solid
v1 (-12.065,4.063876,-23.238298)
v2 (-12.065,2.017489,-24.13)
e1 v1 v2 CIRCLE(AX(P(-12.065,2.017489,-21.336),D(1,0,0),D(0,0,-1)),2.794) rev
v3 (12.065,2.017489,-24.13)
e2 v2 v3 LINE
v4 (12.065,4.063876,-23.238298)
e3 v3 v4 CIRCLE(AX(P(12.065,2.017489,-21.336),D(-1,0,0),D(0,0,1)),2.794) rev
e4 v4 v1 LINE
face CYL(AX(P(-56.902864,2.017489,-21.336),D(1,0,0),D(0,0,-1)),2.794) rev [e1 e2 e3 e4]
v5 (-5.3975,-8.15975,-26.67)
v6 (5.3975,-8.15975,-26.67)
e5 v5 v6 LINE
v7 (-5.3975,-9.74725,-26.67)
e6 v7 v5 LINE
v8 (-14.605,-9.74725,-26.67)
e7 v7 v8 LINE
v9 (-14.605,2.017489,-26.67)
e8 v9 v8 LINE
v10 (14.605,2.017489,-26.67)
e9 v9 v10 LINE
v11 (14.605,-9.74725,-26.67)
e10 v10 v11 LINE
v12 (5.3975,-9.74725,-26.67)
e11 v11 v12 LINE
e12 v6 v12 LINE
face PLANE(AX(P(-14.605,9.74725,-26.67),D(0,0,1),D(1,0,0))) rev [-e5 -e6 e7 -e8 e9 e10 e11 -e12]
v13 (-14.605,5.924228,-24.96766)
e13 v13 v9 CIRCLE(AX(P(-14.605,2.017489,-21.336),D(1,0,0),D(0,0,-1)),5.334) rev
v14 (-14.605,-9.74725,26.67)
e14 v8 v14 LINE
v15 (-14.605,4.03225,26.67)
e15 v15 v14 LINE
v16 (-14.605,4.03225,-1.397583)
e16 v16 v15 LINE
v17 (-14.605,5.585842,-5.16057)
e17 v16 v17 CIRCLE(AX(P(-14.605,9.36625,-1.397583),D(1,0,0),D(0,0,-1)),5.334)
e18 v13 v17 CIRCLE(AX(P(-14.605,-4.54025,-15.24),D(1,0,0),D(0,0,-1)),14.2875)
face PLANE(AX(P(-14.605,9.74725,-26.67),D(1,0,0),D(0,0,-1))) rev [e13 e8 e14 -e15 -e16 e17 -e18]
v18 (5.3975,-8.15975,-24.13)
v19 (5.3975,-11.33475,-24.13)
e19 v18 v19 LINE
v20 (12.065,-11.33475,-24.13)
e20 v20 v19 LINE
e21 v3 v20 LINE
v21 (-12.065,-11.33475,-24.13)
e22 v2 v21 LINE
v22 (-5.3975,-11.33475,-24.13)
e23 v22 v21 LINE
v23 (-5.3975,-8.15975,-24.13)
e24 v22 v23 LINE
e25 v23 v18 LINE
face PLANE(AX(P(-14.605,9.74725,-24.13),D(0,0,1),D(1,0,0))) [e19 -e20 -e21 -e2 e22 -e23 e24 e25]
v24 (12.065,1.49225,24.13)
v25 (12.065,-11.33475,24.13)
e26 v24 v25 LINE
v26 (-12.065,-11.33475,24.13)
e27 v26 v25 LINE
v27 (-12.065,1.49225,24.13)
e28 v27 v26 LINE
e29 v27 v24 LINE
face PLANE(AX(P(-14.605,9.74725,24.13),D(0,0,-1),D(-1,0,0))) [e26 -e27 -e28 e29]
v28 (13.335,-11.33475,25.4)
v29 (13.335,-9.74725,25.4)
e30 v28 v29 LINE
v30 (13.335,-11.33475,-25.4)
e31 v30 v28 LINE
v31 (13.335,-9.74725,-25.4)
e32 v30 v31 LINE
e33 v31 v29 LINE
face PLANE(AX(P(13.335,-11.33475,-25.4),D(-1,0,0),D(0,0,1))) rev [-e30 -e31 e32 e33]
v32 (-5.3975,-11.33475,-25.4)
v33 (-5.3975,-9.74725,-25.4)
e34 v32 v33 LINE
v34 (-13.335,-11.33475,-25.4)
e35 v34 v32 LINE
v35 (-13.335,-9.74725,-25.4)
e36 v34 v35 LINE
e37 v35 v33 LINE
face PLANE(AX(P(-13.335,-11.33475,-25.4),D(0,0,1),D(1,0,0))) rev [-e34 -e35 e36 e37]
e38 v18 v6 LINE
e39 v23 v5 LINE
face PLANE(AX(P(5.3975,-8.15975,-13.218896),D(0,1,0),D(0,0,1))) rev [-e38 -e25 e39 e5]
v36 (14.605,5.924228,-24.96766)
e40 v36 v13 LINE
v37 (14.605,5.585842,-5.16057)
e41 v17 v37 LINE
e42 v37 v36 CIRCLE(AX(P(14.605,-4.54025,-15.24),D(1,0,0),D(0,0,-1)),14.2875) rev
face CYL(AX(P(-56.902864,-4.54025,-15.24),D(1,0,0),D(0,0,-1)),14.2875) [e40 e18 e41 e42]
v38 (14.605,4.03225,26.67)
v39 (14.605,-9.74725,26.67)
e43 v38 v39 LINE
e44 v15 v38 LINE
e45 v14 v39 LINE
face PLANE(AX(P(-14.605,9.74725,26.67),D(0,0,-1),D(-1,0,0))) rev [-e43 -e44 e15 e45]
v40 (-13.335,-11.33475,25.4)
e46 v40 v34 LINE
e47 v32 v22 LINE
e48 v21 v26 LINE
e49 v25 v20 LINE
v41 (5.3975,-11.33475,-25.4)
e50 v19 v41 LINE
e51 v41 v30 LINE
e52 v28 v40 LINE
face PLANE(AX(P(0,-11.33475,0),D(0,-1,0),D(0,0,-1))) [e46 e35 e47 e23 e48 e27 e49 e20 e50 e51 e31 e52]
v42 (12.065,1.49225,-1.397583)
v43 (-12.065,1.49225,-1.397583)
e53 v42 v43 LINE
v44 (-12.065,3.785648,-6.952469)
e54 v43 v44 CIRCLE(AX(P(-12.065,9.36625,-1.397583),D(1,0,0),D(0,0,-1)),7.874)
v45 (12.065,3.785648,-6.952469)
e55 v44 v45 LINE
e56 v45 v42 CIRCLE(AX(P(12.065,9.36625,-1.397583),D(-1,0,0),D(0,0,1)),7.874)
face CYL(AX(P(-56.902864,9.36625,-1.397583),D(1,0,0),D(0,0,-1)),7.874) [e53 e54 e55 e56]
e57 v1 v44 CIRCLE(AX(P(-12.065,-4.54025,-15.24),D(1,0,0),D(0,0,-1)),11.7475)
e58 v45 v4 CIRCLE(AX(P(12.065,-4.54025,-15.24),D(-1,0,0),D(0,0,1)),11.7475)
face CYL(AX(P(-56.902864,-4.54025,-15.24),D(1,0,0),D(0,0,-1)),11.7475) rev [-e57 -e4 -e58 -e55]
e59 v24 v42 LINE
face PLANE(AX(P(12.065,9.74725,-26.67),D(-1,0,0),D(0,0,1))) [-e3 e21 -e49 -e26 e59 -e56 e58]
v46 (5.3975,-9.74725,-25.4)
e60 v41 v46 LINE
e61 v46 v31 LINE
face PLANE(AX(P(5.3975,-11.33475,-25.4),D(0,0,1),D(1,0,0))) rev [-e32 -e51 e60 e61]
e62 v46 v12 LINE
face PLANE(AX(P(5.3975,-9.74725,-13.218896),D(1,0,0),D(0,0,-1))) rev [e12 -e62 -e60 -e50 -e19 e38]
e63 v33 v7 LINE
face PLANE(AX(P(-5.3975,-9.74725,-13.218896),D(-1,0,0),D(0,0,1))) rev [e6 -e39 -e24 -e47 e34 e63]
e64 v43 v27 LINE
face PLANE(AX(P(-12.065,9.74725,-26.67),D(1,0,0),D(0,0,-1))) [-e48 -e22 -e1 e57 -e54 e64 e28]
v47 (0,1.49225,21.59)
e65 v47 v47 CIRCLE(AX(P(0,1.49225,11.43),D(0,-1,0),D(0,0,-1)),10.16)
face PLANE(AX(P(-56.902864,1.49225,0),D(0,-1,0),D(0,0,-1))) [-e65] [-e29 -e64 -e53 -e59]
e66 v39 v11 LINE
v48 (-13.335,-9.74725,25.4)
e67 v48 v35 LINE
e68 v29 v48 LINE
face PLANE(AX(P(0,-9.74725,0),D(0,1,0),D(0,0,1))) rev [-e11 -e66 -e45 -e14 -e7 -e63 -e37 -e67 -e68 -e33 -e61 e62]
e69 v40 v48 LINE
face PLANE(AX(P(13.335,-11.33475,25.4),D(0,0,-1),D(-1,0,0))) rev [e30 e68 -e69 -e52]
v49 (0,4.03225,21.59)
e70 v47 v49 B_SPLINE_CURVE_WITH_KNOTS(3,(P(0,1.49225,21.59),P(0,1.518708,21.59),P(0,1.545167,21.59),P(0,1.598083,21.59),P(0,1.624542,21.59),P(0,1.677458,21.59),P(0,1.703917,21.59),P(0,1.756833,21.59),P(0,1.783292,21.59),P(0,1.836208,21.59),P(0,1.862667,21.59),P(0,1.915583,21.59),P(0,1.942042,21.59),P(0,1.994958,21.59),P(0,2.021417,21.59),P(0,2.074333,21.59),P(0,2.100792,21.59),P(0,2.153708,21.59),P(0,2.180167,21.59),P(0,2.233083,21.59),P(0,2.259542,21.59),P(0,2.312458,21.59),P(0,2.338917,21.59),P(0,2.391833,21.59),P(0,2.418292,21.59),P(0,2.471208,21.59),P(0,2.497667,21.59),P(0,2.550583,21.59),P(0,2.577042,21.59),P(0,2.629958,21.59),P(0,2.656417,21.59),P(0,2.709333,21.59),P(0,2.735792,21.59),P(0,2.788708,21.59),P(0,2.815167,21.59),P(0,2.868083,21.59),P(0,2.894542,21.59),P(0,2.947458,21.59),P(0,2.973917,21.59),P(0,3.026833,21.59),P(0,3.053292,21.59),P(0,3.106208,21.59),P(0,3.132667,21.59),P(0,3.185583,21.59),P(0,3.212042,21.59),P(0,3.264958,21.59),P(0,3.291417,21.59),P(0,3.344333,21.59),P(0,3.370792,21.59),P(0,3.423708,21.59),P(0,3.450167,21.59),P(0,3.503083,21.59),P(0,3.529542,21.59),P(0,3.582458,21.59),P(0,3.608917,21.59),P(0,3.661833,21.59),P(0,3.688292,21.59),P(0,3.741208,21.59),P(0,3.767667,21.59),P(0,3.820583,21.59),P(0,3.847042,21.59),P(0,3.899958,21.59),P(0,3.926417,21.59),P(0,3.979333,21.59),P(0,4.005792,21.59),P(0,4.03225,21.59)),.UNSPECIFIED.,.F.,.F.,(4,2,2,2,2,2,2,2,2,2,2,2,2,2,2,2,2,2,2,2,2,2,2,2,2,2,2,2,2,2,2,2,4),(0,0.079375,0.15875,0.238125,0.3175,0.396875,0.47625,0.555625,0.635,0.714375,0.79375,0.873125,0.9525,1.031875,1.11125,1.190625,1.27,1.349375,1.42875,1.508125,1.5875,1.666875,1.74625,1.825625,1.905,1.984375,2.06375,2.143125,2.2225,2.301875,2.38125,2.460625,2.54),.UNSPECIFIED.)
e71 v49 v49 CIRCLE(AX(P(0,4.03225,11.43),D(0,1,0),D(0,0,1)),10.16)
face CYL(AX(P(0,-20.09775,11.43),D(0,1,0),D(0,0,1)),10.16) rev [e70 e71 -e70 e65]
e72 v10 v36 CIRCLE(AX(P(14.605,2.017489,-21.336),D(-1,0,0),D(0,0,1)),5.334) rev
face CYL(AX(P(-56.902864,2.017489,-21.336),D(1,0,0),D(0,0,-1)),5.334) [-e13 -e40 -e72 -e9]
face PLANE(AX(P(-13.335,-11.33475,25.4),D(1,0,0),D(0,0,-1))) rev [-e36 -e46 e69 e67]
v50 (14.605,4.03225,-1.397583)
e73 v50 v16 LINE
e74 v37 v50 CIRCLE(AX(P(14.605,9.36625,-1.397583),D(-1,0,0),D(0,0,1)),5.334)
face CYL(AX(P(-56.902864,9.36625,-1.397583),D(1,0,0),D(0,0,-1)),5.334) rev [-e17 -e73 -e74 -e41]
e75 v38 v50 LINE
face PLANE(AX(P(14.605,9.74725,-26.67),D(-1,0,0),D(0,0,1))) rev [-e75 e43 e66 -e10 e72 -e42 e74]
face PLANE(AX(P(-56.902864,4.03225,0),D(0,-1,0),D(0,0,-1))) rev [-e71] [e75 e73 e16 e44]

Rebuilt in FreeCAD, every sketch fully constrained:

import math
import FreeCAD as App
import Part
import Sketcher

V = App.Vector
Q = App.Units.Quantity


def edges_at(feature, points):
    """Names of the edges that pass closest to the given points."""
    edges = feature.Shape.Edges
    near = lambda p: min(range(len(edges)), key=lambda i: edges[i].distToShape(Part.Vertex(*p))[0])
    return sorted({f"Edge{near(p) + 1}" for p in points})


def faces_at(feature, points):
    """Names of the faces that lie closest to the given points."""
    faces = feature.Shape.Faces
    near = lambda p: min(range(len(faces)), key=lambda i: faces[i].distToShape(Part.Vertex(*p))[0])
    return sorted({f"Face{near(p) + 1}" for p in points})


def add_polygon(sketch, points):
    """Adds a closed chain of lines whose ends are joined by coincident constraints."""
    first, n = sketch.GeometryCount, len(points)
    for a, b in zip(points, points[1:] + points[:1]):
        sketch.addGeometry(Part.LineSegment(App.Vector(*a, 0), App.Vector(*b, 0)), False)
    for i in range(n):
        sketch.addConstraint(Sketcher.Constraint("Coincident", first + i, 2, first + (i + 1) % n, 1))

doc = App.newDocument("Part")
body = doc.addObject("PartDesign::Body", "Body")

sketch1 = body.newObject("Sketcher::SketchObject", "Sketch")
sketch1.AttachmentSupport = (doc.getObject("XZ_Plane"), [""])
sketch1.MapMode = "FlatFace"
add_polygon(sketch1, [(-14.605, -26.67), (-14.605, 26.67), (14.605, 26.67), (14.605, -26.67)])
sketch1.addConstraint(Sketcher.Constraint("Vertical", 0))
sketch1.addConstraint(Sketcher.Constraint("Horizontal", 1))
sketch1.addConstraint(Sketcher.Constraint("Vertical", 2))
sketch1.addConstraint(Sketcher.Constraint("Horizontal", 3))
sketch1.addConstraint(Sketcher.Constraint("Symmetric", 0, 2, 2, 2, -1, 1))
sketch1.addConstraint(Sketcher.Constraint("DistanceY", 0, 1, 0, 2, Q("2.1 in")))
sketch1.addConstraint(Sketcher.Constraint("DistanceX", 1, 1, 1, 2, Q("1.15 in")))
pad1 = body.newObject("PartDesign::Pad", "Pad")
pad1.Profile = sketch1
pad1.Length = Q("0.7675 in")
pad1.Midplane = True

sketch2 = body.newObject("Sketcher::SketchObject", "Sketch001")
sketch2.AttachmentSupport = (doc.getObject("YZ_Plane"), [""])
sketch2.MapMode = "FlatFace"
sketch2.AttachmentOffset = App.Placement(V(0, 0, 0.575 * 25.4), App.Rotation())
sketch2.addGeometry(Part.LineSegment(V(9.74725, 26.67, 0), V(4.03225, 26.67, 0)), False)
sketch2.addGeometry(Part.LineSegment(V(4.03225, 26.67, 0), V(4.03225, -3.81, 0)), False)
sketch2.addGeometry(Part.ArcOfCircle(Part.Circle(V(-4.54025, -15.24, 0), V(0, 0, 1), 14.2875), math.radians(0), math.radians(53.130102)), False)
sketch2.addGeometry(Part.LineSegment(V(9.74725, -15.24, 0), V(9.74725, 26.67, 0)), False)
sketch2.addGeometry(Part.LineSegment(V(9.74725, -26.67, 0), V(9.74725, -15.24, 0)), False)
sketch2.addGeometry(Part.ArcOfCircle(Part.Circle(V(-4.54025, -15.24, 0), V(0, 0, 1), 14.2875), math.radians(-53.130102), math.radians(0)), False)
sketch2.addGeometry(Part.LineSegment(V(4.03225, -26.67, 0), V(9.74725, -26.67, 0)), False)
sketch2.addConstraint(Sketcher.Constraint("Coincident", 0, 2, 1, 1))
sketch2.addConstraint(Sketcher.Constraint("Coincident", 1, 2, 2, 2))
sketch2.addConstraint(Sketcher.Constraint("Tangent", 2, 1, 3, 1))
sketch2.addConstraint(Sketcher.Constraint("Coincident", 3, 2, 0, 1))
sketch2.addConstraint(Sketcher.Constraint("Tangent", 4, 2, 5, 2))
sketch2.addConstraint(Sketcher.Constraint("Coincident", 5, 1, 6, 1))
sketch2.addConstraint(Sketcher.Constraint("Coincident", 6, 2, 4, 1))
sketch2.addConstraint(Sketcher.Constraint("Horizontal", 0))
sketch2.addConstraint(Sketcher.Constraint("Vertical", 1))
sketch2.addConstraint(Sketcher.Constraint("Vertical", 3))
sketch2.addConstraint(Sketcher.Constraint("Vertical", 4))
sketch2.addConstraint(Sketcher.Constraint("Horizontal", 6))
sketch2.addConstraint(Sketcher.Constraint("Coincident", 5, 3, 2, 3))
sketch2.addConstraint(Sketcher.Constraint("Equal", 2, 5))
sketch2.addConstraint(Sketcher.Constraint("Symmetric", 0, 2, 5, 1, -1))
sketch2.addConstraint(Sketcher.Constraint("DistanceY", 1, 2, 1, 1, Q("1.2 in")))
sketch2.addConstraint(Sketcher.Constraint("Radius", 2, Q("0.5625 in")))
sketch2.addConstraint(Sketcher.Constraint("DistanceY", 3, 1, 3, 2, Q("1.65 in")))
sketch2.addConstraint(Sketcher.Constraint("DistanceX", 2, 3, -1, 1, Q("4.54025 mm")))
pocket1 = body.newObject("PartDesign::Pocket", "Pocket")
pocket1.Profile = sketch2
pocket1.Length = Q("1.15 in")
doc.recompute()

fillet = body.newObject("PartDesign::Fillet", "Fillet")
fillet.Base = (pocket1, edges_at(pocket1, [(0, 4.032, -3.81)]))
fillet.Radius = Q("0.21 in")
doc.recompute()

fillet2 = body.newObject("PartDesign::Fillet", "Fillet001")
fillet2.Base = (fillet, edges_at(fillet, [(0, 4.032, -26.67)]))
fillet2.Radius = Q("0.21 in")
doc.recompute()

thickness = body.newObject("PartDesign::Thickness", "Thickness")
thickness.Base = (fillet2, faces_at(fillet2, [(0, -9.747, 0)]))
thickness.Value = Q("0.1 in")
thickness.Reversed = True
thickness.Join = "Intersection"

sketch3 = body.newObject("Sketcher::SketchObject", "Sketch002")
sketch3.AttachmentSupport = (doc.getObject("XZ_Plane"), [""])
sketch3.MapMode = "FlatFace"
sketch3.AttachmentOffset = App.Placement(V(0, 0, -4.03225), App.Rotation())
sketch3.addGeometry(Part.Circle(V(0, 11.43, 0), V(0, 0, 1), 10.16), False)
sketch3.addConstraint(Sketcher.Constraint("PointOnObject", 0, 3, -2))
sketch3.addConstraint(Sketcher.Constraint("Diameter", 0, Q("0.8 in")))
sketch3.addConstraint(Sketcher.Constraint("DistanceY", -1, 1, 0, 3, Q("0.45 in")))
pocket2 = body.newObject("PartDesign::Pocket", "Pocket001")
pocket2.Profile = sketch3
pocket2.Length = Q("0.95 in")
pocket2.Reversed = True

sketch4 = body.newObject("Sketcher::SketchObject", "Sketch003")
sketch4.AttachmentSupport = (doc.getObject("XY_Plane"), [""])
sketch4.MapMode = "FlatFace"
sketch4.AttachmentOffset = App.Placement(V(0, 0, -1.05 * 25.4), App.Rotation())
add_polygon(sketch4, [(5.3975, -8.15975), (5.3975, -9.74725), (-5.3975, -9.74725), (-5.3975, -8.15975)])
sketch4.addConstraint(Sketcher.Constraint("Vertical", 0))
sketch4.addConstraint(Sketcher.Constraint("Horizontal", 1))
sketch4.addConstraint(Sketcher.Constraint("Vertical", 2))
sketch4.addConstraint(Sketcher.Constraint("Horizontal", 3))
sketch4.addConstraint(Sketcher.Constraint("DistanceX", 1, 2, 1, 1, Q("0.425 in")))
sketch4.addConstraint(Sketcher.Constraint("DistanceY", 0, 2, 0, 1, Q("0.0625 in")))
sketch4.addConstraint(Sketcher.Constraint("DistanceX", -1, 1, 0, 2, Q("0.2125 in")))
sketch4.addConstraint(Sketcher.Constraint("DistanceY", 0, 2, -1, 1, Q("9.74725 mm")))
pocket3 = body.newObject("PartDesign::Pocket", "Pocket002")
pocket3.Profile = sketch4
pocket3.Length = Q("0.1 in")
pocket3.Reversed = True

sketch5 = body.newObject("Sketcher::SketchObject", "Sketch004")
sketch5.AttachmentSupport = (doc.getObject("XZ_Plane"), [""])
sketch5.MapMode = "FlatFace"
sketch5.AttachmentOffset = App.Placement(V(0, 0, 9.74725), App.Rotation())
add_polygon(sketch5, [(-5.3975, -24.13), (-12.065, -24.13), (-12.065, 24.13), (12.065, 24.13), (12.065, -24.13), (5.3975, -24.13), (5.3975, -25.4), (13.335, -25.4), (13.335, 25.4), (-13.335, 25.4), (-13.335, -25.4), (-5.3975, -25.4)])
sketch5.addConstraint(Sketcher.Constraint("Horizontal", 0))
sketch5.addConstraint(Sketcher.Constraint("Vertical", 1))
sketch5.addConstraint(Sketcher.Constraint("Horizontal", 2))
sketch5.addConstraint(Sketcher.Constraint("Vertical", 3))
sketch5.addConstraint(Sketcher.Constraint("Horizontal", 4))
sketch5.addConstraint(Sketcher.Constraint("Vertical", 5))
sketch5.addConstraint(Sketcher.Constraint("Horizontal", 6))
sketch5.addConstraint(Sketcher.Constraint("Vertical", 7))
sketch5.addConstraint(Sketcher.Constraint("Horizontal", 8))
sketch5.addConstraint(Sketcher.Constraint("Vertical", 9))
sketch5.addConstraint(Sketcher.Constraint("Horizontal", 10))
sketch5.addConstraint(Sketcher.Constraint("Vertical", 11))
sketch5.addConstraint(Sketcher.Constraint("Symmetric", 0, 2, 2, 2, -1, 1))
sketch5.addConstraint(Sketcher.Constraint("Symmetric", 6, 2, 8, 2, -1, 1))
sketch5.addConstraint(Sketcher.Constraint("Symmetric", 5, 2, 10, 2, -2))
sketch5.addConstraint(Sketcher.Constraint("Horizontal", 0, 2, 3, 2))
sketch5.addConstraint(Sketcher.Constraint("DistanceY", 7, 1, 7, 2, Q("2 in")))
sketch5.addConstraint(Sketcher.Constraint("DistanceY", 1, 1, 1, 2, Q("1.9 in")))
sketch5.addConstraint(Sketcher.Constraint("DistanceX", 0, 2, 6, 2, Q("1 in")))
sketch5.addConstraint(Sketcher.Constraint("DistanceX", 2, 1, 2, 2, Q("0.95 in")))
sketch5.addConstraint(Sketcher.Constraint("DistanceX", 6, 1, 6, 2, Q("0.3125 in")))
pad2 = body.newObject("PartDesign::Pad", "Pad001")
pad2.Profile = sketch5
pad2.Length = Q("0.0625 in")

doc.recompute()
